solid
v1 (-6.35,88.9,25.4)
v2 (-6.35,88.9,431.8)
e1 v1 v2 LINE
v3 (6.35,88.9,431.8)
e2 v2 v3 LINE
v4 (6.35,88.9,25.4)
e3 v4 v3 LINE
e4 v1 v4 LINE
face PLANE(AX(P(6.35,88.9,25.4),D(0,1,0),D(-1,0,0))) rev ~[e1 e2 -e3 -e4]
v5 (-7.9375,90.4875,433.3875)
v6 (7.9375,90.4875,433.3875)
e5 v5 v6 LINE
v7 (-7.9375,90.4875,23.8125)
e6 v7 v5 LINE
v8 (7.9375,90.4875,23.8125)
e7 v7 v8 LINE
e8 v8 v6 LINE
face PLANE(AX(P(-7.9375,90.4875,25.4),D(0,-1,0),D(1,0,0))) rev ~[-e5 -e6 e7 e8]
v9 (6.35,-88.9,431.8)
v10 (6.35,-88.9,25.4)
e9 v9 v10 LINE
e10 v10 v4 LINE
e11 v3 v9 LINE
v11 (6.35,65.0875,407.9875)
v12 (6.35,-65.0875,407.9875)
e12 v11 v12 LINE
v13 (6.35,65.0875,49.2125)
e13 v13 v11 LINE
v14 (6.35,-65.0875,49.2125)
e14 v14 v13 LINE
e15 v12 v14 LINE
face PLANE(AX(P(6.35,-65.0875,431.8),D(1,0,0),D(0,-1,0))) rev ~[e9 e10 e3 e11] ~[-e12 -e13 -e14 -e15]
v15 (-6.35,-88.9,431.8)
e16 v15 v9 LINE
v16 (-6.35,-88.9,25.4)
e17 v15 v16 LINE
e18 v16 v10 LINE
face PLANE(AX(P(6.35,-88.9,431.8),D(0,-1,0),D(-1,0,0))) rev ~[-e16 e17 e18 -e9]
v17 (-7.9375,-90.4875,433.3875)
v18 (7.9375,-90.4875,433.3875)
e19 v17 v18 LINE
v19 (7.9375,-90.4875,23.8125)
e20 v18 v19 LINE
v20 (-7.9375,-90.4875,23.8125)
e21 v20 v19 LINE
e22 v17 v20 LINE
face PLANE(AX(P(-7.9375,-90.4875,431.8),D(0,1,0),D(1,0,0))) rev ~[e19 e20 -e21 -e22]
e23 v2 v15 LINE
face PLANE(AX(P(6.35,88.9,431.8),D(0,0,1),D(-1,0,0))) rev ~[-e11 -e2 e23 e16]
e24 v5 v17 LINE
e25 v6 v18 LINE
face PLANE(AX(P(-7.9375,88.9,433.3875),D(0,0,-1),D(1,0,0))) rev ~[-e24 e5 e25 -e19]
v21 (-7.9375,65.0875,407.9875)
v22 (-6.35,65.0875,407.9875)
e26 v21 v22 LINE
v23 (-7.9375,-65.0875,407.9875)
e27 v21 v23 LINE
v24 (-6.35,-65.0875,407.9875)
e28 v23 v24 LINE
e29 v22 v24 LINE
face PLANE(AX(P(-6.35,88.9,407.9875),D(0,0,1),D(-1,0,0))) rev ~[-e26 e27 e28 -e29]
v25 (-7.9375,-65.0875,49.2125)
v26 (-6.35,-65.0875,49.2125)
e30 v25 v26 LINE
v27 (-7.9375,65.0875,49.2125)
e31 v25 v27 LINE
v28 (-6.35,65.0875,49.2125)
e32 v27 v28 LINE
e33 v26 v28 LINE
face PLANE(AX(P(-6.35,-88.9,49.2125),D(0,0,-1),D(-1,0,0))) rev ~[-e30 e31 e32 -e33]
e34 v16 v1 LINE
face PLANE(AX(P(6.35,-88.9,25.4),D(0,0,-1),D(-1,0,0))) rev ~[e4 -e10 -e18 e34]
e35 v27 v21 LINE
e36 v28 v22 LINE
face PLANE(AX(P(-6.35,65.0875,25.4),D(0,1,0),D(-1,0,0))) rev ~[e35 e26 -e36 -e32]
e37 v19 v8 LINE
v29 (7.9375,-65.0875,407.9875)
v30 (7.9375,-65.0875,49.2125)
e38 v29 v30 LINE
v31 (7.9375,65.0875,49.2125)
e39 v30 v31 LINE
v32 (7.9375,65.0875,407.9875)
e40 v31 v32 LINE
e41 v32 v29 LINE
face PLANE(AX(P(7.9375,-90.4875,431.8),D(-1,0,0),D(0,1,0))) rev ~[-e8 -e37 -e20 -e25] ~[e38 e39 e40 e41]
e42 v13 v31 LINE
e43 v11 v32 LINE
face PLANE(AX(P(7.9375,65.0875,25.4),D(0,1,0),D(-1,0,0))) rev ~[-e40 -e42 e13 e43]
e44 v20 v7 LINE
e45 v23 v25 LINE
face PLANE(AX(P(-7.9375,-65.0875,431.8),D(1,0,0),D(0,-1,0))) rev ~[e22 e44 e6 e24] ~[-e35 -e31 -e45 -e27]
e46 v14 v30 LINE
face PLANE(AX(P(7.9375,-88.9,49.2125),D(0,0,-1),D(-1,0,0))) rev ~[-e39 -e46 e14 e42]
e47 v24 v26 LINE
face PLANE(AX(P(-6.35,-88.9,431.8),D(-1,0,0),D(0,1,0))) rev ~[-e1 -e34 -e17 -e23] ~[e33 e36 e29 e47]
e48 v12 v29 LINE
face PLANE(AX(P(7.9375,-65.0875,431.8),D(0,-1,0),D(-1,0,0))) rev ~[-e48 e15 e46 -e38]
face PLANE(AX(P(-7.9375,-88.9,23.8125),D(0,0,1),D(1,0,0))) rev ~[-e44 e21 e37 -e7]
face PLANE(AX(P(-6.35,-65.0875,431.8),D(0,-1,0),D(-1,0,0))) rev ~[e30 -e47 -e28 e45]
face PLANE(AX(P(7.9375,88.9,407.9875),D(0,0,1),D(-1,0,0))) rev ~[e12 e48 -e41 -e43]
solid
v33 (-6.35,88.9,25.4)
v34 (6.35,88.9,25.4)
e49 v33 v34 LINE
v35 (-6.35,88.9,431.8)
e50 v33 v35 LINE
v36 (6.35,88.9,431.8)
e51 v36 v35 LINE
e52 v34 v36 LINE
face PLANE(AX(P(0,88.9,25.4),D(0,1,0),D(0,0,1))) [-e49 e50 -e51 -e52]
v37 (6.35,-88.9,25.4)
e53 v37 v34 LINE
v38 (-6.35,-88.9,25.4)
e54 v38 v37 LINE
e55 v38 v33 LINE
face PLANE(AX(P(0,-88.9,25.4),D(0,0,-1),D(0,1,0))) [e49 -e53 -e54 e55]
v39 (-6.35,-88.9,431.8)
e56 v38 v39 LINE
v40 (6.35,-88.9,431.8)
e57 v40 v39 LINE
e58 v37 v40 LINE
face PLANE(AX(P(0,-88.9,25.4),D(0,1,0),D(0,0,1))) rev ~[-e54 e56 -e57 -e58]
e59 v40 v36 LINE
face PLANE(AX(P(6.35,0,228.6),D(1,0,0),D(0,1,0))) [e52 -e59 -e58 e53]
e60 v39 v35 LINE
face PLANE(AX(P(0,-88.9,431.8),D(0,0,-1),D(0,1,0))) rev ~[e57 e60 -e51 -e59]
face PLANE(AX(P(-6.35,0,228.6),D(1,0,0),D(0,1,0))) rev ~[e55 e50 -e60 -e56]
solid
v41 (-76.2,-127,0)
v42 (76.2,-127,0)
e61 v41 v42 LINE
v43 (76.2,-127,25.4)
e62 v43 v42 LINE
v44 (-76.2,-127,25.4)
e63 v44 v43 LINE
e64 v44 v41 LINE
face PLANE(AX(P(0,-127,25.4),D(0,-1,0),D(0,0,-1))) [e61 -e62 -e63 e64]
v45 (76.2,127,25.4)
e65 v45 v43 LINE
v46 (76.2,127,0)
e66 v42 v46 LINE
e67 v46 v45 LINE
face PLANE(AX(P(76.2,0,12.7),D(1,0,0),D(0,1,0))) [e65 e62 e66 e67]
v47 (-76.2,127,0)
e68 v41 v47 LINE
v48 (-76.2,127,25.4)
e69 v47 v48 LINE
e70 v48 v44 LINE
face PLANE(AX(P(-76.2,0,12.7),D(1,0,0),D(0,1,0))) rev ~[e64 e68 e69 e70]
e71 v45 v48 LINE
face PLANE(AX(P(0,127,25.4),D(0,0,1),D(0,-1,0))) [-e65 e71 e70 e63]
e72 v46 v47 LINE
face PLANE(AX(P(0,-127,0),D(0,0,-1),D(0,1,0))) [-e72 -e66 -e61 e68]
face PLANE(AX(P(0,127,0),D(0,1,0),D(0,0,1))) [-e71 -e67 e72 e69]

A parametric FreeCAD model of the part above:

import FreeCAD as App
import Part
import Sketcher

V = App.Vector
Q = App.Units.Quantity

doc = App.newDocument("Part")
body = doc.addObject("PartDesign::Body", "Body")

sketch1 = body.newObject("Sketcher::SketchObject", "Sketch")
sketch1.AttachmentSupport = (doc.getObject("YZ_Plane"), [""])
sketch1.MapMode = "FlatFace"
sketch1.addGeometry(Part.LineSegment(V(-89, 432, 0), V(-89, 25, 0)), False)
sketch1.addGeometry(Part.LineSegment(V(-89, 25, 0), V(89, 25, 0)), False)
sketch1.addGeometry(Part.LineSegment(V(89, 25, 0), V(89, 432, 0)), False)
sketch1.addGeometry(Part.LineSegment(V(89, 432, 0), V(-89, 432, 0)), False)
sketch1.addConstraint(Sketcher.Constraint("Coincident", 0, 2, 1, 1))
sketch1.addConstraint(Sketcher.Constraint("Coincident", 1, 2, 2, 1))
sketch1.addConstraint(Sketcher.Constraint("Coincident", 2, 2, 3, 1))
sketch1.addConstraint(Sketcher.Constraint("Coincident", 3, 2, 0, 1))
sketch1.addConstraint(Sketcher.Constraint("Vertical", 0))
sketch1.addConstraint(Sketcher.Constraint("Horizontal", 1))
sketch1.addConstraint(Sketcher.Constraint("Vertical", 2))
sketch1.addConstraint(Sketcher.Constraint("Horizontal", 3))
sketch1.addConstraint(Sketcher.Constraint("DistanceX", 1, 1, 1, 2, Q("7 in")))
sketch1.addConstraint(Sketcher.Constraint("DistanceY", 0, 2, 0, 1, Q("16 in")))
sketch1.addConstraint(Sketcher.Constraint("DistanceY", -1, 1, 0, 2, Q("1 in")))
sketch1.addConstraint(Sketcher.Constraint("DistanceX", 0, 2, -1, 1, Q("3.5 in")))
pad1 = body.newObject("PartDesign::Pad", "Pad")
pad1.Profile = sketch1
pad1.Length = Q("0.5 in")
pad1.Midplane = True
body2 = doc.addObject("PartDesign::Body", "Body001")

sketch2 = body2.newObject("Sketcher::SketchObject", "Sketch001")
sketch2.AttachmentSupport = (doc.getObject("YZ_Plane001"), [""])
sketch2.MapMode = "FlatFace"
sketch2.addGeometry(Part.LineSegment(V(127, 25, 0), V(-127, 25, 0)), False)
sketch2.addGeometry(Part.LineSegment(V(-127, 25, 0), V(-127, 0, 0)), False)
sketch2.addGeometry(Part.LineSegment(V(-127, 0, 0), V(127, 0, 0)), False)
sketch2.addGeometry(Part.LineSegment(V(127, 0, 0), V(127, 25, 0)), False)
sketch2.addConstraint(Sketcher.Constraint("Coincident", 0, 2, 1, 1))
sketch2.addConstraint(Sketcher.Constraint("Coincident", 1, 2, 2, 1))
sketch2.addConstraint(Sketcher.Constraint("Coincident", 2, 2, 3, 1))
sketch2.addConstraint(Sketcher.Constraint("Coincident", 3, 2, 0, 1))
sketch2.addConstraint(Sketcher.Constraint("Horizontal", 0))
sketch2.addConstraint(Sketcher.Constraint("Vertical", 1))
sketch2.addConstraint(Sketcher.Constraint("Horizontal", 2))
sketch2.addConstraint(Sketcher.Constraint("Vertical", 3))
sketch2.addConstraint(Sketcher.Constraint("Symmetric", 1, 2, 2, 2, -1, 1))
sketch2.addConstraint(Sketcher.Constraint("DistanceX", 0, 2, 0, 1, Q("10 in")))
sketch2.addConstraint(Sketcher.Constraint("DistanceY", 1, 2, 1, 1, Q("1 in")))
pad2 = body2.newObject("PartDesign::Pad", "Pad001")
pad2.Profile = sketch2
pad2.Length = Q("6 in")
pad2.Midplane = True
body3 = doc.addObject("PartDesign::Body", "Body002")

sketch3 = body3.newObject("Sketcher::SketchObject", "Sketch002")
sketch3.AttachmentSupport = (doc.getObject("XY_Plane002"), [""])
sketch3.MapMode = "FlatFace"
sketch3.AttachmentOffset = App.Placement(V(0, 0, 1 * 25.4), App.Rotation())
sketch3.addGeometry(Part.LineSegment(V(6.3, -88.9, 0), V(-6.3, -88.9, 0)), False)
sketch3.addGeometry(Part.LineSegment(V(-6.3, -88.9, 0), V(-6.3, -65.1, 0)), False)
sketch3.addGeometry(Part.LineSegment(V(-6.3, -65.1, 0), V(-7.9, -65.1, 0)), False)
sketch3.addGeometry(Part.LineSegment(V(-7.9, -65.1, 0), V(-7.9, -90.5, 0)), False)
sketch3.addGeometry(Part.LineSegment(V(-7.9, -90.5, 0), V(7.9, -90.5, 0)), False)
sketch3.addGeometry(Part.LineSegment(V(7.9, -90.5, 0), V(7.9, -65.1, 0)), False)
sketch3.addGeometry(Part.LineSegment(V(7.9, -65.1, 0), V(6.3, -65.1, 0)), False)
sketch3.addGeometry(Part.LineSegment(V(6.3, -65.1, 0), V(6.3, -88.9, 0)), False)
sketch3.addConstraint(Sketcher.Constraint("Coincident", 0, 2, 1, 1))
sketch3.addConstraint(Sketcher.Constraint("Coincident", 1, 2, 2, 1))
sketch3.addConstraint(Sketcher.Constraint("Coincident", 2, 2, 3, 1))
sketch3.addConstraint(Sketcher.Constraint("Coincident", 3, 2, 4, 1))
sketch3.addConstraint(Sketcher.Constraint("Coincident", 4, 2, 5, 1))
sketch3.addConstraint(Sketcher.Constraint("Coincident", 5, 2, 6, 1))
sketch3.addConstraint(Sketcher.Constraint("Coincident", 6, 2, 7, 1))
sketch3.addConstraint(Sketcher.Constraint("Coincident", 7, 2, 0, 1))
sketch3.addConstraint(Sketcher.Constraint("Horizontal", 0))
sketch3.addConstraint(Sketcher.Constraint("Vertical", 1))
sketch3.addConstraint(Sketcher.Constraint("Horizontal", 2))
sketch3.addConstraint(Sketcher.Constraint("Vertical", 3))
sketch3.addConstraint(Sketcher.Constraint("Horizontal", 4))
sketch3.addConstraint(Sketcher.Constraint("Vertical", 5))
sketch3.addConstraint(Sketcher.Constraint("Horizontal", 6))
sketch3.addConstraint(Sketcher.Constraint("Vertical", 7))
sketch3.addConstraint(Sketcher.Constraint("Symmetric", 2, 2, 5, 2, -2))
sketch3.addConstraint(Sketcher.Constraint("Equal", 2, 6))
sketch3.addConstraint(Sketcher.Constraint("DistanceY", 3, 2, 3, 1, Q("1 in")))
sketch3.addConstraint(Sketcher.Constraint("DistanceX", 0, 2, 0, 1, Q("0.5 in")))
sketch3.addConstraint(Sketcher.Constraint("DistanceY", 0, 2, -1, 1, Q("3.5 in")))
sketch3.addConstraint(Sketcher.Constraint("DistanceX", 2, 2, 2, 1, Q("0.0625 in")))
sketch3.addConstraint(Sketcher.Constraint("DistanceY", 1, 1, 1, 2, Q("0.9375 in")))

sketch4 = body3.newObject("Sketcher::SketchObject", "Sketch003")
sketch4.AttachmentSupport = (doc.getObject("YZ_Plane002"), [""])
sketch4.MapMode = "FlatFace"
sketch4.AttachmentOffset = App.Placement(V(0, 0, 0.25 * 25.4), App.Rotation())
sketch4.addGeometry(Part.LineSegment(V(-89, 432, 0), V(-89, 25, 0)), False)
sketch4.addGeometry(Part.LineSegment(V(-89, 25, 0), V(89, 25, 0)), False)
sketch4.addGeometry(Part.LineSegment(V(89, 25, 0), V(89, 432, 0)), False)
sketch4.addGeometry(Part.LineSegment(V(89, 432, 0), V(-89, 432, 0)), False)
sketch4.addConstraint(Sketcher.Constraint("Coincident", 0, 2, 1, 1))
sketch4.addConstraint(Sketcher.Constraint("Coincident", 1, 2, 2, 1))
sketch4.addConstraint(Sketcher.Constraint("Coincident", 2, 2, 3, 1))
sketch4.addConstraint(Sketcher.Constraint("Coincident", 3, 2, 0, 1))
sketch4.addConstraint(Sketcher.Constraint("Vertical", 0))
sketch4.addConstraint(Sketcher.Constraint("Horizontal", 1))
sketch4.addConstraint(Sketcher.Constraint("Vertical", 2))
sketch4.addConstraint(Sketcher.Constraint("Horizontal", 3))
sketch4.addConstraint(Sketcher.Constraint("DistanceX", 1, 1, 1, 2, Q("7 in")))
sketch4.addConstraint(Sketcher.Constraint("DistanceY", 0, 2, 0, 1, Q("16 in")))
sketch4.addConstraint(Sketcher.Constraint("DistanceY", -1, 1, 0, 2, Q("1 in")))
sketch4.addConstraint(Sketcher.Constraint("DistanceX", 0, 2, -1, 1, Q("3.5 in")))
doc.recompute()

additivepipe = body3.newObject("PartDesign::AdditivePipe", "AdditivePipe")
additivepipe.Profile = sketch3
additivepipe.Spine = (sketch4, ["Edge1", "Edge2", "Edge3", "Edge4"])
additivepipe.Transition = "Right corner"

doc.recompute()
